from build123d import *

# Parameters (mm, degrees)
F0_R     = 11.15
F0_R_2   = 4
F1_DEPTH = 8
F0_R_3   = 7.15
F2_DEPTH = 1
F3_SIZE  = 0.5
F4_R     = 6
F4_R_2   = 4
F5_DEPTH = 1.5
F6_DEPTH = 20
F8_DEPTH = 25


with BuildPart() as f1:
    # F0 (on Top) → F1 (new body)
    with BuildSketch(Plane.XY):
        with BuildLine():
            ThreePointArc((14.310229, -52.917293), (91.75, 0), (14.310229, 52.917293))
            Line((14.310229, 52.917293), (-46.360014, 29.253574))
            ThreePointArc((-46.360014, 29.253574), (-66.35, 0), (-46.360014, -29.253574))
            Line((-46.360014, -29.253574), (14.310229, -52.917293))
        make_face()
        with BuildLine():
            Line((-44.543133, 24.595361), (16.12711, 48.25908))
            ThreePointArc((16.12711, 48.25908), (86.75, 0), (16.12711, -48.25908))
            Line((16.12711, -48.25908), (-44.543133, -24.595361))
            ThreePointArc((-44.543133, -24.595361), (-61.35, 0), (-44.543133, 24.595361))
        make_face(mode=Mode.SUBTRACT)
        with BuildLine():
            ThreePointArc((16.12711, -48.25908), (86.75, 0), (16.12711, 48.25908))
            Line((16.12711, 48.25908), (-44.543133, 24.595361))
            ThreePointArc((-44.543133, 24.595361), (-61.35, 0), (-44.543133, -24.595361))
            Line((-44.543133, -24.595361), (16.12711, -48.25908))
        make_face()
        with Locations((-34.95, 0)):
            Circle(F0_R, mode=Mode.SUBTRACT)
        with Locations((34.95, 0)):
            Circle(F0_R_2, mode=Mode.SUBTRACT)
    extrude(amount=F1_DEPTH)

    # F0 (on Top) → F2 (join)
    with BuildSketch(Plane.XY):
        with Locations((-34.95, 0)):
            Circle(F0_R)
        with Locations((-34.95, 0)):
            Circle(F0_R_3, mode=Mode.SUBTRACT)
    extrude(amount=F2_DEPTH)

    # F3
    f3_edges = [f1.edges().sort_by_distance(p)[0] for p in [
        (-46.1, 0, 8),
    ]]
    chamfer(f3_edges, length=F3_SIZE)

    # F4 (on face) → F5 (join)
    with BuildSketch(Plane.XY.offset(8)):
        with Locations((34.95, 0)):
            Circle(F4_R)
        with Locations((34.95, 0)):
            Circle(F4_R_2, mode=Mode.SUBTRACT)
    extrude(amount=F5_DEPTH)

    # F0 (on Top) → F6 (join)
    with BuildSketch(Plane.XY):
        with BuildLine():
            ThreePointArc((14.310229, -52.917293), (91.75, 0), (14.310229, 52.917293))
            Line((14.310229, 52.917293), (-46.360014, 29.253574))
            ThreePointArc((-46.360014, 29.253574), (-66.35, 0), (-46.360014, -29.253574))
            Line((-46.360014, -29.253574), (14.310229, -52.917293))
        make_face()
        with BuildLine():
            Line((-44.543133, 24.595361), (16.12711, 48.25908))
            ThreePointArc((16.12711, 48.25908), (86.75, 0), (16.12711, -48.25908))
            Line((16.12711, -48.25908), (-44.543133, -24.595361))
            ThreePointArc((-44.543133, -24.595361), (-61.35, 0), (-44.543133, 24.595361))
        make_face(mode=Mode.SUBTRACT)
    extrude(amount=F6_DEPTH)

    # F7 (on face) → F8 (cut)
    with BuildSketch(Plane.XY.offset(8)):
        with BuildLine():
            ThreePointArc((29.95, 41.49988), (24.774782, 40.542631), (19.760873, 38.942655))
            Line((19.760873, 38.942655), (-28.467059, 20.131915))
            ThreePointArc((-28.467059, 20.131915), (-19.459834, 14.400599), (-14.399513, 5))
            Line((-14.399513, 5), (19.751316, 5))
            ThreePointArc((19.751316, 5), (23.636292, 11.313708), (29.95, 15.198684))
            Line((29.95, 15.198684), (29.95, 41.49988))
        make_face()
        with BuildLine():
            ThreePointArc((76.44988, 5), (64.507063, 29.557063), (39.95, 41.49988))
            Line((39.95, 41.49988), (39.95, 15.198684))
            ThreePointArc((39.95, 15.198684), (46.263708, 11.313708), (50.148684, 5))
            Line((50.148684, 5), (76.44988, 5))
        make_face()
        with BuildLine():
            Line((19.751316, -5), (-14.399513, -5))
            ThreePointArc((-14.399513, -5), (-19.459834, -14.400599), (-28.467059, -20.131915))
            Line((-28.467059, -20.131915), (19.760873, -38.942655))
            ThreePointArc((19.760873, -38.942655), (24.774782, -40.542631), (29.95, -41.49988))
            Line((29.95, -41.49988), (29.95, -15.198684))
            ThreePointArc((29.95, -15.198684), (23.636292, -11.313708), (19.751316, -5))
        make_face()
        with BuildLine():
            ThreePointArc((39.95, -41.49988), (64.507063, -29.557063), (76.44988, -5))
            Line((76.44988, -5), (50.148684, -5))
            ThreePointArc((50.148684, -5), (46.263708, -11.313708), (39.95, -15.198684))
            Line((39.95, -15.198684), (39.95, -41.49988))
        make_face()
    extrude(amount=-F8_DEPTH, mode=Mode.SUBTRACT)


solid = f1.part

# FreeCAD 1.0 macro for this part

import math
import FreeCAD as App
import Part
import Sketcher


def edges_at(feature, points):
    """Names of the edges that pass closest to the given points."""
    edges = feature.Shape.Edges
    near = lambda p: min(range(len(edges)), key=lambda i: edges[i].distToShape(Part.Vertex(*p))[0])
    return sorted({f"Edge{near(p) + 1}" for p in points})

doc = App.newDocument("Part")
body = doc.addObject("PartDesign::Body", "Body")

# Sketch on XY plane
sketch1 = doc.addObject("Sketcher::SketchObject", "Sketch")
body.addObject(sketch1)
sketch1.AttachmentSupport = (doc.XY_Plane, [""])
sketch1.MapMode = "FlatFace"
sketch1.addGeometry([
    Part.ArcOfCircle(Part.Circle(App.Vector(34.9, 0, 0), App.Vector(0, 0, 1), 56.8), math.radians(-111), math.radians(111)),  # 0
    Part.LineSegment(App.Vector(14.3, 52.9, 0), App.Vector(-46.4, 29.3, 0)),  # 1
    Part.ArcOfCircle(Part.Circle(App.Vector(-34.9, 0, 0), App.Vector(0, 0, 1), 31.4), math.radians(111), math.radians(249)),  # 2
    Part.LineSegment(App.Vector(-46.4, -29.3, 0), App.Vector(14.3, -52.9, 0)),  # 3
    Part.Circle(App.Vector(-35, 0, 0), App.Vector(0, 0, 1), 11.2),  # 4
    Part.Circle(App.Vector(35, 0, 0), App.Vector(0, 0, 1), 4),  # 5
], False)
sketch1.addConstraint([
    Sketcher.Constraint("Tangent", 0, 2, 1, 1),
    Sketcher.Constraint("Tangent", 1, 2, 2, 1),
    Sketcher.Constraint("Tangent", 2, 2, 3, 1),
    Sketcher.Constraint("Tangent", 3, 2, 0, 1),
    Sketcher.Constraint("Coincident", 4, 3, 2, 3),
    Sketcher.Constraint("Coincident", 5, 3, 0, 3),
    Sketcher.Constraint("Symmetric", 0, 3, 2, 3, -1, 1),
    Sketcher.Constraint("PointOnObject", 0, 3, -1),
    Sketcher.Constraint("Diameter", 5, 8.0),
    Sketcher.Constraint("Diameter", 4, 22.3),
    Sketcher.Constraint("Radius", 0, 56.8),
    Sketcher.Constraint("Radius", 2, 31.4),
    Sketcher.Constraint("DistanceX", 2, 3, 0, 3, 69.899999),
])
pad1 = doc.addObject("PartDesign::Pad", "Pad")
body.addObject(pad1)
pad1.Profile = sketch1
pad1.Length = 8

# Sketch on XY plane
sketch2 = doc.addObject("Sketcher::SketchObject", "Sketch001")
body.addObject(sketch2)
sketch2.AttachmentSupport = (doc.XY_Plane, [""])
sketch2.MapMode = "FlatFace"
sketch2.addGeometry([
    Part.Circle(App.Vector(-35, 0, 0), App.Vector(0, 0, 1), 11),
    Part.Circle(App.Vector(-35, 0, 0), App.Vector(0, 0, 1), 7),
], False)
sketch2.addConstraint([
    Sketcher.Constraint("Coincident", 1, 3, 0, 3),
    Sketcher.Constraint("PointOnObject", 0, 3, -1),
    Sketcher.Constraint("Diameter", 0, 22.3),
    Sketcher.Constraint("Diameter", 1, 14.3),
    Sketcher.Constraint("DistanceX", 0, 3, -1, 1, 34.95),
])
pad2 = doc.addObject("PartDesign::Pad", "Pad001")
body.addObject(pad2)
pad2.Profile = sketch2
pad2.Length = 1
doc.recompute()

chamfer = doc.addObject("PartDesign::Chamfer", "Chamfer")
body.addObject(chamfer)
chamfer.Base = (pad2, edges_at(pad2, [(-46.1, 0, 8)]))
chamfer.Size = 0.5

# Sketch on XY plane
sketch3 = doc.addObject("Sketcher::SketchObject", "Sketch002")
body.addObject(sketch3)
sketch3.AttachmentSupport = (doc.XY_Plane, [""])
sketch3.MapMode = "FlatFace"
sketch3.AttachmentOffset = App.Placement(App.Vector(0, 0, 8), App.Rotation())
sketch3.addGeometry([
    Part.Circle(App.Vector(35, 0, 0), App.Vector(0, 0, 1), 6),
    Part.Circle(App.Vector(35, 0, 0), App.Vector(0, 0, 1), 4),
], False)
sketch3.addConstraint([
    Sketcher.Constraint("Coincident", 1, 3, 0, 3),
    Sketcher.Constraint("PointOnObject", 0, 3, -1),
    Sketcher.Constraint("Diameter", 0, 12.0),
    Sketcher.Constraint("Diameter", 1, 8.0),
    Sketcher.Constraint("DistanceX", -1, 1, 0, 3, 34.95),
])
pad3 = doc.addObject("PartDesign::Pad", "Pad002")
body.addObject(pad3)
pad3.Profile = sketch3
pad3.Length = 1.5

# Sketch on XY plane
sketch4 = doc.addObject("Sketcher::SketchObject", "Sketch003")
body.addObject(sketch4)
sketch4.AttachmentSupport = (doc.XY_Plane, [""])
sketch4.MapMode = "FlatFace"
sketch4.addGeometry([
    Part.ArcOfCircle(Part.Circle(App.Vector(35, 0, 0), App.Vector(0, 0, 1), 57), math.radians(-111), math.radians(111)),  # 0
    Part.LineSegment(App.Vector(14, 53, 0), App.Vector(-46, 29, 0)),  # 1
    Part.ArcOfCircle(Part.Circle(App.Vector(-35, 0, 0), App.Vector(0, 0, 1), 31), math.radians(111), math.radians(249)),  # 2
    Part.LineSegment(App.Vector(-46, -29, 0), App.Vector(14, -53, 0)),  # 3
    Part.ArcOfCircle(Part.Circle(App.Vector(-35, 0, 0), App.Vector(0, 0, 1), 26), math.radians(111), math.radians(249)),  # 4
    Part.LineSegment(App.Vector(-45, 25, 0), App.Vector(16, 48, 0)),  # 5
    Part.ArcOfCircle(Part.Circle(App.Vector(35, 0, 0), App.Vector(0, 0, 1), 52), math.radians(-111), math.radians(111)),  # 6
    Part.LineSegment(App.Vector(16, -48, 0), App.Vector(-45, -25, 0)),  # 7
], False)
sketch4.addConstraint([
    Sketcher.Constraint("Tangent", 0, 2, 1, 1),
    Sketcher.Constraint("Tangent", 1, 2, 2, 1),
    Sketcher.Constraint("Tangent", 2, 2, 3, 1),
    Sketcher.Constraint("Tangent", 3, 2, 0, 1),
    Sketcher.Constraint("Tangent", 4, 1, 5, 1),
    Sketcher.Constraint("Tangent", 5, 2, 6, 2),
    Sketcher.Constraint("Tangent", 6, 1, 7, 1),
    Sketcher.Constraint("Tangent", 7, 2, 4, 2),
    Sketcher.Constraint("Coincident", 4, 3, 2, 3),
    Sketcher.Constraint("Coincident", 6, 3, 0, 3),
    Sketcher.Constraint("Symmetric", 0, 3, 2, 3, -1, 1),
    Sketcher.Constraint("PointOnObject", 0, 3, -1),
    Sketcher.Constraint("Parallel", 1, 5),
    Sketcher.Constraint("Radius", 0, 56.8),
    Sketcher.Constraint("Radius", 2, 31.4),
    Sketcher.Constraint("Radius", 4, 26.4),
    Sketcher.Constraint("DistanceX", 2, 3, 0, 3, 69.899999),
])
pad4 = doc.addObject("PartDesign::Pad", "Pad003")
body.addObject(pad4)
pad4.Profile = sketch4
pad4.Length = 20

# Sketch on XY plane
sketch5 = doc.addObject("Sketcher::SketchObject", "Sketch004")
body.addObject(sketch5)
sketch5.AttachmentSupport = (doc.XY_Plane, [""])
sketch5.MapMode = "FlatFace"
sketch5.AttachmentOffset = App.Placement(App.Vector(0, 0, 8), App.Rotation())
sketch5.addGeometry([
    Part.ArcOfCircle(Part.Circle(App.Vector(35, 0, 0), App.Vector(0, 0, 1), 42), math.radians(96.87), math.radians(111.31)),  # 0
    Part.LineSegment(App.Vector(20, 39, 0), App.Vector(-28, 20, 0)),  # 1
    Part.ArcOfCircle(Part.Circle(App.Vector(-35, 0, 0), App.Vector(0, 0, 1), 21), math.radians(14), math.radians(72)),  # 2
    Part.LineSegment(App.Vector(-14, 5, 0), App.Vector(20, 5, 0)),  # 3
    Part.ArcOfCircle(Part.Circle(App.Vector(35, 0, 0), App.Vector(0, 0, 1), 16), math.radians(108), math.radians(162)),  # 4
    Part.LineSegment(App.Vector(30, 15, 0), App.Vector(30, 41, 0)),  # 5
    Part.ArcOfCircle(Part.Circle(App.Vector(35, 0, 0), App.Vector(0, 0, 1), 42), math.radians(7), math.radians(83)),  # 6
    Part.LineSegment(App.Vector(40, 41, 0), App.Vector(40, 15, 0)),  # 7
    Part.ArcOfCircle(Part.Circle(App.Vector(35, 0, 0), App.Vector(0, 0, 1), 16), math.radians(18), math.radians(72)),  # 8
    Part.LineSegment(App.Vector(50, 5, 0), App.Vector(76, 5, 0)),  # 9
    Part.LineSegment(App.Vector(20, -5, 0), App.Vector(-14, -5, 0)),  # 10
    Part.ArcOfCircle(Part.Circle(App.Vector(-35, 0, 0), App.Vector(0, 0, 1), 21), math.radians(-72), math.radians(-14)),  # 11
    Part.LineSegment(App.Vector(-28, -20, 0), App.Vector(20, -39, 0)),  # 12
    Part.ArcOfCircle(Part.Circle(App.Vector(35, 0, 0), App.Vector(0, 0, 1), 42), math.radians(-111.31), math.radians(-96.87)),  # 13
    Part.LineSegment(App.Vector(30, -41, 0), App.Vector(30, -15, 0)),  # 14
    Part.ArcOfCircle(Part.Circle(App.Vector(35, 0, 0), App.Vector(0, 0, 1), 16), math.radians(-162), math.radians(-108)),  # 15
    Part.ArcOfCircle(Part.Circle(App.Vector(35, 0, 0), App.Vector(0, 0, 1), 42), math.radians(-83), math.radians(-7)),  # 16
    Part.LineSegment(App.Vector(76, -5, 0), App.Vector(50, -5, 0)),  # 17
    Part.ArcOfCircle(Part.Circle(App.Vector(35, 0, 0), App.Vector(0, 0, 1), 16), math.radians(-72), math.radians(-18)),  # 18
    Part.LineSegment(App.Vector(40, -15, 0), App.Vector(40, -41, 0)),  # 19
], False)
sketch5.addConstraint([
    Sketcher.Constraint("Tangent", 0, 2, 1, 1),
    Sketcher.Constraint("Coincident", 1, 2, 2, 2),
    Sketcher.Constraint("Coincident", 2, 1, 3, 1),
    Sketcher.Constraint("Coincident", 3, 2, 4, 2),
    Sketcher.Constraint("Coincident", 4, 1, 5, 1),
    Sketcher.Constraint("Coincident", 5, 2, 0, 1),
    Sketcher.Constraint("Coincident", 6, 2, 7, 1),
    Sketcher.Constraint("Coincident", 7, 2, 8, 2),
    Sketcher.Constraint("Coincident", 8, 1, 9, 1),
    Sketcher.Constraint("Coincident", 9, 2, 6, 1),
    Sketcher.Constraint("Coincident", 10, 2, 11, 2),
    Sketcher.Constraint("Coincident", 11, 1, 12, 1),
    Sketcher.Constraint("Tangent", 12, 2, 13, 1),
    Sketcher.Constraint("Coincident", 13, 2, 14, 1),
    Sketcher.Constraint("Coincident", 14, 2, 15, 2),
    Sketcher.Constraint("Coincident", 15, 1, 10, 1),
    Sketcher.Constraint("Coincident", 16, 2, 17, 1),
    Sketcher.Constraint("Coincident", 17, 2, 18, 2),
    Sketcher.Constraint("Coincident", 18, 1, 19, 1),
    Sketcher.Constraint("Coincident", 19, 2, 16, 1),
    Sketcher.Constraint("Horizontal", 3),
    Sketcher.Constraint("Vertical", 5),
    Sketcher.Constraint("Vertical", 7),
    Sketcher.Constraint("Horizontal", 9),
    Sketcher.Constraint("Horizontal", 10),
    Sketcher.Constraint("Vertical", 14),
    Sketcher.Constraint("Horizontal", 17),
    Sketcher.Constraint("Vertical", 19),
    Sketcher.Constraint("Coincident", 4, 3, 0, 3),
    Sketcher.Constraint("Coincident", 6, 3, 4, 3),
    Sketcher.Constraint("Coincident", 8, 3, 4, 3),
    Sketcher.Constraint("Coincident", 11, 3, 2, 3),
    Sketcher.Constraint("Coincident", 15, 3, 4, 3),
    Sketcher.Constraint("Coincident", 16, 3, 6, 3),
    Sketcher.Constraint("Coincident", 18, 3, 6, 3),
    Sketcher.Constraint("Equal", 4, 8),
    Sketcher.Constraint("Equal", 2, 11),
    Sketcher.Constraint("Equal", 0, 13),
    Sketcher.Constraint("Equal", 8, 15),
    Sketcher.Constraint("Equal", 6, 16),
    Sketcher.Constraint("Equal", 15, 18),
    Sketcher.Constraint("Symmetric", 2, 3, 4, 3, -1, 1),
    Sketcher.Constraint("Symmetric", 2, 3, 13, 3, -1, 1),
    Sketcher.Constraint("Symmetric", 2, 1, 10, 2, -1),
    Sketcher.Constraint("Horizontal", 5, 2, 6, 2),
    Sketcher.Constraint("Horizontal", 4, 1, 7, 2),
    Sketcher.Constraint("Horizontal", 3, 2, 8, 1),
    Sketcher.Constraint("Horizontal", 15, 1, 16, 2),
    Sketcher.Constraint("Horizontal", 14, 2, 18, 1),
    Sketcher.Constraint("Vertical", 1, 2, 11, 1),
    Sketcher.Constraint("Vertical", 5, 2, 13, 2),
    Sketcher.Constraint("Equal", 17, 5),
    Sketcher.Constraint("DistanceY", -1, 1, 2, 1, 5.0),
    Sketcher.Constraint("DistanceX", 2, 3, 6, 3, 69.9),
    Sketcher.Constraint("Radius", 0, 41.800013),
    Sketcher.Constraint("Radius", 2, 21.150005),
    Sketcher.Constraint("Radius", 4, 16.000005),
    Sketcher.Constraint("DistanceX", 1, 2, -1, 1, 28.467059),
])
pocket1 = doc.addObject("PartDesign::Pocket", "Pocket")
body.addObject(pocket1)
pocket1.Profile = sketch5
pocket1.Length = 25

doc.recompute()
